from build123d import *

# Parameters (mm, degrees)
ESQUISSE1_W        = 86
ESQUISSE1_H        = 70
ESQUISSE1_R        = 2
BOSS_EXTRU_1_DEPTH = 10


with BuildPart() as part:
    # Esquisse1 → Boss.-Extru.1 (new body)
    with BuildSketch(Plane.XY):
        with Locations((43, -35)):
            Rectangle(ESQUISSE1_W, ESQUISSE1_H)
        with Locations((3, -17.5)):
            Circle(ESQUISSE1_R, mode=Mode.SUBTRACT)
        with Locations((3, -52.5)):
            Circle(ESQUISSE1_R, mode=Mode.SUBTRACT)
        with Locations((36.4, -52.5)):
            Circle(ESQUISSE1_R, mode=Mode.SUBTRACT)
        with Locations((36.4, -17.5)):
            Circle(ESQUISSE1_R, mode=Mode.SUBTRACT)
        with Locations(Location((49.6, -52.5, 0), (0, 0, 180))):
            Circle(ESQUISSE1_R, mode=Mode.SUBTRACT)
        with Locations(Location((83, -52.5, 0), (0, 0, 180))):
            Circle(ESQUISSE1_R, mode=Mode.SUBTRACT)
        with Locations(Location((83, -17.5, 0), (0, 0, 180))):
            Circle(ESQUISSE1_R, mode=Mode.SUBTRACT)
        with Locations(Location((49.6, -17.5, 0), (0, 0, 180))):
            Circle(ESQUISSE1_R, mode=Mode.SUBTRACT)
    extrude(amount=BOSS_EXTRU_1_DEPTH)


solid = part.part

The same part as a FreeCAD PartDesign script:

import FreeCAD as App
import Part
import Sketcher
from FreeCAD import Vector


def add_polygon(sketch, points):
    """Adds a closed chain of lines whose ends are joined by coincident constraints."""
    first, n = sketch.GeometryCount, len(points)
    for a, b in zip(points, points[1:] + points[:1]):
        sketch.addGeometry(Part.LineSegment(App.Vector(*a, 0), App.Vector(*b, 0)), False)
    for i in range(n):
        sketch.addConstraint(Sketcher.Constraint("Coincident", first + i, 2, first + (i + 1) % n, 1))

doc = App.newDocument("Part")
body = doc.addObject("PartDesign::Body", "Body")

sketch1 = doc.addObject("Sketcher::SketchObject", "Sketch")
body.addObject(sketch1)
sketch1.AttachmentSupport = (doc.XY_Plane, [""])
sketch1.MapMode = "FlatFace"
add_polygon(sketch1, [(0, 0), (0, -70), (86, -70), (86, 0)])
sketch1.addGeometry(Part.Circle(Vector(3, -52.5, 0), Vector(0, 0, 1), 2), False)
sketch1.addGeometry(Part.Circle(Vector(36.4, -52.5, 0), Vector(0, 0, 1), 2), False)
sketch1.addGeometry(Part.Circle(Vector(49.6, -52.5, 0), Vector(0, 0, 1), 2), False)
sketch1.addGeometry(Part.Circle(Vector(83, -52.5, 0), Vector(0, 0, 1), 2), False)
sketch1.addGeometry(Part.Circle(Vector(3, -17.5, 0), Vector(0, 0, 1), 2), False)
sketch1.addGeometry(Part.Circle(Vector(36.4, -17.5, 0), Vector(0, 0, 1), 2), False)
sketch1.addGeometry(Part.Circle(Vector(49.6, -17.5, 0), Vector(0, 0, 1), 2), False)
sketch1.addGeometry(Part.Circle(Vector(83, -17.5, 0), Vector(0, 0, 1), 2), False)
sketch1.addConstraint(Sketcher.Constraint("Vertical", 0))
sketch1.addConstraint(Sketcher.Constraint("Horizontal", 1))
sketch1.addConstraint(Sketcher.Constraint("Vertical", 2))
sketch1.addConstraint(Sketcher.Constraint("Horizontal", 3))
sketch1.addConstraint(Sketcher.Constraint("Coincident", 3, 2, -1, 1))
sketch1.addConstraint(Sketcher.Constraint("Equal", 4, 5))
sketch1.addConstraint(Sketcher.Constraint("Equal", 5, 6))
sketch1.addConstraint(Sketcher.Constraint("Equal", 6, 7))
sketch1.addConstraint(Sketcher.Constraint("Equal", 7, 8))
sketch1.addConstraint(Sketcher.Constraint("Equal", 8, 9))
sketch1.addConstraint(Sketcher.Constraint("Equal", 9, 10))
sketch1.addConstraint(Sketcher.Constraint("Equal", 10, 11))
sketch1.addConstraint(Sketcher.Constraint("Horizontal", 4, 3, 5, 3))
sketch1.addConstraint(Sketcher.Constraint("Horizontal", 5, 3, 6, 3))
sketch1.addConstraint(Sketcher.Constraint("Horizontal", 6, 3, 7, 3))
sketch1.addConstraint(Sketcher.Constraint("Horizontal", 8, 3, 9, 3))
sketch1.addConstraint(Sketcher.Constraint("Horizontal", 9, 3, 10, 3))
sketch1.addConstraint(Sketcher.Constraint("Horizontal", 10, 3, 11, 3))
sketch1.addConstraint(Sketcher.Constraint("Vertical", 4, 3, 8, 3))
sketch1.addConstraint(Sketcher.Constraint("Vertical", 5, 3, 9, 3))
sketch1.addConstraint(Sketcher.Constraint("Vertical", 6, 3, 10, 3))
sketch1.addConstraint(Sketcher.Constraint("Vertical", 7, 3, 11, 3))
sketch1.addConstraint(Sketcher.Constraint("Diameter", 4, 4.0))
sketch1.addConstraint(Sketcher.Constraint("DistanceX", 1, 1, 1, 2, 86.0))
sketch1.addConstraint(Sketcher.Constraint("DistanceY", 0, 2, 0, 1, 70.0))
sketch1.addConstraint(Sketcher.Constraint("DistanceX", -1, 1, 4, 3, 3.0))
sketch1.addConstraint(Sketcher.Constraint("DistanceX", -1, 1, 7, 3, 83.0))
sketch1.addConstraint(Sketcher.Constraint("DistanceY", 4, 3, 8, 3, 35.0))
sketch1.addConstraint(Sketcher.Constraint("DistanceY", 4, 3, -1, 1, 52.5))
sketch1.addConstraint(Sketcher.Constraint("DistanceX", -1, 1, 5, 3, 36.4))
sketch1.addConstraint(Sketcher.Constraint("DistanceX", -1, 1, 6, 3, 49.6))
pad1 = doc.addObject("PartDesign::Pad", "Pad")
body.addObject(pad1)
pad1.Profile = sketch1
pad1.Length = 10

doc.recompute()
